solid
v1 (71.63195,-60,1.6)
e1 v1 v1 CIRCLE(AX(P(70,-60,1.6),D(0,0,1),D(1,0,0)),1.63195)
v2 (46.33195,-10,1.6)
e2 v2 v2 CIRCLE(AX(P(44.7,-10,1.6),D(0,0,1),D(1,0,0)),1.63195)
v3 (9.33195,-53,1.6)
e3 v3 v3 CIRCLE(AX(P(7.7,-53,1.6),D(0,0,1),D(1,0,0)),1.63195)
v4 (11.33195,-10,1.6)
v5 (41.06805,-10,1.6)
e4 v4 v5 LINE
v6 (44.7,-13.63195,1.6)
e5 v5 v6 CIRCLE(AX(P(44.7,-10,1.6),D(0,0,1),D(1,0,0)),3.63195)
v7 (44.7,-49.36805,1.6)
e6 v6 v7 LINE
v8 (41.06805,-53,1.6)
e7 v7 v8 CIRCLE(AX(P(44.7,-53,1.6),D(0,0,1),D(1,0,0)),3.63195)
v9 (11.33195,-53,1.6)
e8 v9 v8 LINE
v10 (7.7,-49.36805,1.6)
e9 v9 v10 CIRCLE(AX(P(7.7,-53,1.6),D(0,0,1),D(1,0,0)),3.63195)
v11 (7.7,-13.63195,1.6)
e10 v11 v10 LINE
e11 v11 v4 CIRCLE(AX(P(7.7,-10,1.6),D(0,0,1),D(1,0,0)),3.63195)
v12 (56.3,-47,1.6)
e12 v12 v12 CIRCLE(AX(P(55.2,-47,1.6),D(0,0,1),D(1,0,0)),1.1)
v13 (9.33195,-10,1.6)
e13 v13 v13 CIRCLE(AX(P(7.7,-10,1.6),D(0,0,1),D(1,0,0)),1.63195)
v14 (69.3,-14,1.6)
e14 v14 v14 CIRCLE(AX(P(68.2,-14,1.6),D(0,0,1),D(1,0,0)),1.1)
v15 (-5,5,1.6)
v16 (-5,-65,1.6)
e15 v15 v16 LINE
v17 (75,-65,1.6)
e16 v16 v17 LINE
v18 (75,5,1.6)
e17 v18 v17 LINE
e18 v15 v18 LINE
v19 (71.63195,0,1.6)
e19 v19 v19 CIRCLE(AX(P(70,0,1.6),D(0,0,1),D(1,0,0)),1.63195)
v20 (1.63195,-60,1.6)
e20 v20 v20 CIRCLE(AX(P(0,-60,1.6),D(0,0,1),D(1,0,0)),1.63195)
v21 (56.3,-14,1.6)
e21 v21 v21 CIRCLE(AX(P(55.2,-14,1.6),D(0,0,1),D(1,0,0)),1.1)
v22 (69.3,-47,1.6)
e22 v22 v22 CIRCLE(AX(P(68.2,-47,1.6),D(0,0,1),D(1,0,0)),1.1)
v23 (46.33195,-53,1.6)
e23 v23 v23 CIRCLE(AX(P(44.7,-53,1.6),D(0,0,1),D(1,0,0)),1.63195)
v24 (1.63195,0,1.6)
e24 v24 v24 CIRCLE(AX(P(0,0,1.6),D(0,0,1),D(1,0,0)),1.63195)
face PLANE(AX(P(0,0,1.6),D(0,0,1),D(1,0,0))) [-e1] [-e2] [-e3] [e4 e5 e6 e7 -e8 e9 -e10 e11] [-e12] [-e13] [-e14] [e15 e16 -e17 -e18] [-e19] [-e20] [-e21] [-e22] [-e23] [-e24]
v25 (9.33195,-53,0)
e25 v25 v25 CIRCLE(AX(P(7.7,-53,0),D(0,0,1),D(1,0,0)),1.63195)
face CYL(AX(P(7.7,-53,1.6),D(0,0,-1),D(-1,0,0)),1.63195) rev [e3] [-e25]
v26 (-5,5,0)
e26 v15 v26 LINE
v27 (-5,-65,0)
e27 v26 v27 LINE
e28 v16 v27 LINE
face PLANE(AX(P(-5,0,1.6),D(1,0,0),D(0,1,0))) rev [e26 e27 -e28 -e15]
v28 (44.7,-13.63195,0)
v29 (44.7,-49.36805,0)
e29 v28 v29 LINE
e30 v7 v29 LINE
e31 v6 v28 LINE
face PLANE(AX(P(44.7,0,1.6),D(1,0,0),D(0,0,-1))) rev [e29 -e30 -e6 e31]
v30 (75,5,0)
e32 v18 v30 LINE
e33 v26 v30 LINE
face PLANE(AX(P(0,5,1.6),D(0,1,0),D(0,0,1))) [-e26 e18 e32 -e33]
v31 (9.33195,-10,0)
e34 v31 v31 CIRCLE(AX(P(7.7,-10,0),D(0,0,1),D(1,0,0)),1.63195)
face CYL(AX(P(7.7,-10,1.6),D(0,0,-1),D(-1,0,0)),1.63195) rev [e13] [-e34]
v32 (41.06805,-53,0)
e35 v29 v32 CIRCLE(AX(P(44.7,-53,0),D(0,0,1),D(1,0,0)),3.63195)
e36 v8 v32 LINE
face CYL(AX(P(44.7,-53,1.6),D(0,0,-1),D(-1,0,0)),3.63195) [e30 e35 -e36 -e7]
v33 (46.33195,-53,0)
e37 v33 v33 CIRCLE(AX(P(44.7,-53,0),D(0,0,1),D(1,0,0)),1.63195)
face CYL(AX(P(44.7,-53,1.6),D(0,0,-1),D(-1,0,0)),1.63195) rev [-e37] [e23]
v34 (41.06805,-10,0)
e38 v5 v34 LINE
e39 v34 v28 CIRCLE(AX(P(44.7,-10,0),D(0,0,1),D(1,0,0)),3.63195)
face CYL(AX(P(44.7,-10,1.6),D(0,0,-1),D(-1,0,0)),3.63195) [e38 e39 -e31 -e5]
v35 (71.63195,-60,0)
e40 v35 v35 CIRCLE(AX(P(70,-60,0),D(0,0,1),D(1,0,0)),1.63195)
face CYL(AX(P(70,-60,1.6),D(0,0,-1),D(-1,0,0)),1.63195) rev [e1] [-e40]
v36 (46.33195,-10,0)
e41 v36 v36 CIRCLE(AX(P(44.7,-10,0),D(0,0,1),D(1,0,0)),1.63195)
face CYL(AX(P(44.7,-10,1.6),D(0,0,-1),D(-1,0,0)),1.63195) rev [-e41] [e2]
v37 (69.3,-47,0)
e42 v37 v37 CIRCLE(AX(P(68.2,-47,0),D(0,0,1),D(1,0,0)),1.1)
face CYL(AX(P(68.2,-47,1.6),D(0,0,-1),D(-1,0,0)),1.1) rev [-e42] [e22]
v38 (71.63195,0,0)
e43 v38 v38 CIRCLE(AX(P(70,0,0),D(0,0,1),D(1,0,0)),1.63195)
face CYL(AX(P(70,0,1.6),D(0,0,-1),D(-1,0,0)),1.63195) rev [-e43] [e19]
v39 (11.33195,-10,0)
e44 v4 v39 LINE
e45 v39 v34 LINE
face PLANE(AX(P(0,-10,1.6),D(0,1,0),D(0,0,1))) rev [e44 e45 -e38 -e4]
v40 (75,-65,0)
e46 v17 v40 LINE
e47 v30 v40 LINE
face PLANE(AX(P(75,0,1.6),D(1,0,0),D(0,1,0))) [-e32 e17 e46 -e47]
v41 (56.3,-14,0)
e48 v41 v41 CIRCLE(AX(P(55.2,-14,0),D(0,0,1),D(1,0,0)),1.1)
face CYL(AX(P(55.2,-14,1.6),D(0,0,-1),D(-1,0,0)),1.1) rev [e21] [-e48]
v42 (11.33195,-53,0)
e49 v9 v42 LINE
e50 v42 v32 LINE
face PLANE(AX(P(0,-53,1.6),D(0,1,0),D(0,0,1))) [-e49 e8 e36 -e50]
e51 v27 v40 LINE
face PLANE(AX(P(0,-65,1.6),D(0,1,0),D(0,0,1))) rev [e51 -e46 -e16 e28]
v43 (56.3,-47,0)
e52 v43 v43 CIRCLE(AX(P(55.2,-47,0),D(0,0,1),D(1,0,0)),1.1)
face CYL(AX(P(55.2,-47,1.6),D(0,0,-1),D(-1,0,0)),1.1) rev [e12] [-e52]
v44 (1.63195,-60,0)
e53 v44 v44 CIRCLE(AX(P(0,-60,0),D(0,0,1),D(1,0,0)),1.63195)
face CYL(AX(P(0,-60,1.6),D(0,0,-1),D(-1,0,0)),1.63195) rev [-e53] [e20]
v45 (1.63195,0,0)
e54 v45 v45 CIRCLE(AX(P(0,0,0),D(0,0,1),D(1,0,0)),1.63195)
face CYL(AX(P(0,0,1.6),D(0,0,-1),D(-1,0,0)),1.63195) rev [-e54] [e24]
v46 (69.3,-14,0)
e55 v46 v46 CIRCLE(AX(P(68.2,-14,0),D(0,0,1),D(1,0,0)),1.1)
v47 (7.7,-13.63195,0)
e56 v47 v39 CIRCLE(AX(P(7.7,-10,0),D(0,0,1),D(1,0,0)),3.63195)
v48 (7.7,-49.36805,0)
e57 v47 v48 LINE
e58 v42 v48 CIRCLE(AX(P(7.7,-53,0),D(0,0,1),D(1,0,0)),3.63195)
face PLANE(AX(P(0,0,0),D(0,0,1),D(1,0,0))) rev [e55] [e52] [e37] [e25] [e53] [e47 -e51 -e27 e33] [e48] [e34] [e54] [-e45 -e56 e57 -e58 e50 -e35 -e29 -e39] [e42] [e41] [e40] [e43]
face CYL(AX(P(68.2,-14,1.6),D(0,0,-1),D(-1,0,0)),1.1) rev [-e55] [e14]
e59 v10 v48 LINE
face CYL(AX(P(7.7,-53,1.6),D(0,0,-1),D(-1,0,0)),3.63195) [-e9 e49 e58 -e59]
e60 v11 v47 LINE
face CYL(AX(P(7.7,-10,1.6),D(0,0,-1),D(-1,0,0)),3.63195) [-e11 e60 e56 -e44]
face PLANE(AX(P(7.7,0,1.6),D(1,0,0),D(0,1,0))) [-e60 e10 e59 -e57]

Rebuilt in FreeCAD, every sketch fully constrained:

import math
import FreeCAD as App
import Part
import Sketcher
Q = App.Units.Quantity

doc = App.newDocument("Part")
params = doc.addObject("Spreadsheet::Sheet", "Params")
for row, (alias, value) in enumerate([
    ("sketch1_diameter", "2.2 mm"),
    ("sketch1_width", "80 mm"),
    ("sketch1_height", "70 mm"),
    ("pad1_length", "1.6 mm"),
], start=1):
    params.set(f"A{row}", alias)
    params.set(f"B{row}", "=" + value)
    params.setAlias(f"B{row}", alias)

body = doc.addObject("PartDesign::Body", "Body")

# Sketch on XY plane
sketch1 = doc.addObject("Sketcher::SketchObject", "Sketch")
body.addObject(sketch1)
sketch1.AttachmentSupport = (doc.XY_Plane, [""])
sketch1.MapMode = "FlatFace"
sketch1.addGeometry([
    Part.LineSegment(App.Vector(-5, 5, 0), App.Vector(-5, -65, 0)),  # 0
    Part.LineSegment(App.Vector(-5, -65, 0), App.Vector(75, -65, 0)),  # 1
    Part.LineSegment(App.Vector(75, -65, 0), App.Vector(75, 5, 0)),  # 2
    Part.LineSegment(App.Vector(75, 5, 0), App.Vector(-5, 5, 0)),  # 3
    Part.Circle(App.Vector(0, -60, 0), App.Vector(0, 0, 1), 1.63195),  # 4
    Part.Circle(App.Vector(7.7, -53, 0), App.Vector(0, 0, 1), 1.63195),  # 5
    Part.ArcOfCircle(Part.Circle(App.Vector(7.7, -53, 0), App.Vector(0, 0, 1), 3.63195), math.radians(0), math.radians(90)),  # 6
    Part.LineSegment(App.Vector(7.7, -49.36805, 0), App.Vector(7.7, -13.63195, 0)),  # 7
    Part.ArcOfCircle(Part.Circle(App.Vector(7.7, -10, 0), App.Vector(0, 0, 1), 3.63195), math.radians(-90), math.radians(0)),  # 8
    Part.LineSegment(App.Vector(11.33195, -10, 0), App.Vector(41.06805, -10, 0)),  # 9
    Part.ArcOfCircle(Part.Circle(App.Vector(44.7, -10, 0), App.Vector(0, 0, 1), 3.63195), math.radians(180), math.radians(270)),  # 10
    Part.LineSegment(App.Vector(44.7, -13.63195, 0), App.Vector(44.7, -49.36805, 0)),  # 11
    Part.ArcOfCircle(Part.Circle(App.Vector(44.7, -53, 0), App.Vector(0, 0, 1), 3.63195), math.radians(90), math.radians(180)),  # 12
    Part.LineSegment(App.Vector(41.06805, -53, 0), App.Vector(11.33195, -53, 0)),  # 13
    Part.Circle(App.Vector(44.7, -53, 0), App.Vector(0, 0, 1), 1.63195),  # 14
    Part.Circle(App.Vector(70, -60, 0), App.Vector(0, 0, 1), 1.63195),  # 15
    Part.Circle(App.Vector(55.2, -47, 0), App.Vector(0, 0, 1), 1.1),  # 16
    Part.Circle(App.Vector(68.2, -47, 0), App.Vector(0, 0, 1), 1.1),  # 17
    Part.Circle(App.Vector(7.7, -10, 0), App.Vector(0, 0, 1), 1.63195),  # 18
    Part.Circle(App.Vector(0, 0, 0), App.Vector(0, 0, 1), 1.63195),  # 19
    Part.Circle(App.Vector(44.7, -10, 0), App.Vector(0, 0, 1), 1.63195),  # 20
    Part.Circle(App.Vector(55.2, -14, 0), App.Vector(0, 0, 1), 1.1),  # 21
    Part.Circle(App.Vector(68.2, -14, 0), App.Vector(0, 0, 1), 1.1),  # 22
    Part.Circle(App.Vector(70, 0, 0), App.Vector(0, 0, 1), 1.63195),  # 23
], False)
sketch1.addConstraint([
    Sketcher.Constraint("Coincident", 0, 2, 1, 1),
    Sketcher.Constraint("Coincident", 1, 2, 2, 1),
    Sketcher.Constraint("Coincident", 2, 2, 3, 1),
    Sketcher.Constraint("Coincident", 3, 2, 0, 1),
    Sketcher.Constraint("Coincident", 6, 2, 7, 1),
    Sketcher.Constraint("Coincident", 7, 2, 8, 1),
    Sketcher.Constraint("Coincident", 8, 2, 9, 1),
    Sketcher.Constraint("Coincident", 9, 2, 10, 1),
    Sketcher.Constraint("Coincident", 10, 2, 11, 1),
    Sketcher.Constraint("Coincident", 11, 2, 12, 1),
    Sketcher.Constraint("Coincident", 12, 2, 13, 1),
    Sketcher.Constraint("Coincident", 13, 2, 6, 1),
    Sketcher.Constraint("Vertical", 0),
    Sketcher.Constraint("Horizontal", 1),
    Sketcher.Constraint("Vertical", 2),
    Sketcher.Constraint("Horizontal", 3),
    Sketcher.Constraint("Vertical", 7),
    Sketcher.Constraint("Horizontal", 9),
    Sketcher.Constraint("Vertical", 11),
    Sketcher.Constraint("Horizontal", 13),
    Sketcher.Constraint("Coincident", 19, 3, -1, 1),
    Sketcher.Constraint("Coincident", 6, 3, 5, 3),
    Sketcher.Constraint("Coincident", 14, 3, 12, 3),
    Sketcher.Constraint("Coincident", 18, 3, 8, 3),
    Sketcher.Constraint("Coincident", 20, 3, 10, 3),
    Sketcher.Constraint("Equal", 4, 5),
    Sketcher.Constraint("Equal", 6, 8),
    Sketcher.Constraint("Equal", 8, 10),
    Sketcher.Constraint("Equal", 10, 12),
    Sketcher.Constraint("Equal", 5, 14),
    Sketcher.Constraint("Equal", 14, 15),
    Sketcher.Constraint("Equal", 16, 17),
    Sketcher.Constraint("Equal", 15, 18),
    Sketcher.Constraint("Equal", 18, 19),
    Sketcher.Constraint("Equal", 19, 20),
    Sketcher.Constraint("Equal", 17, 21),
    Sketcher.Constraint("Equal", 21, 22),
    Sketcher.Constraint("Equal", 20, 23),
    Sketcher.Constraint("PointOnObject", 4, 3, -2),
    Sketcher.Constraint("PointOnObject", 23, 3, -1),
    Sketcher.Constraint("Horizontal", 8, 3, 10, 3),
    Sketcher.Constraint("Horizontal", 6, 3, 12, 3),
    Sketcher.Constraint("Horizontal", 4, 3, 15, 3),
    Sketcher.Constraint("Horizontal", 16, 3, 17, 3),
    Sketcher.Constraint("Horizontal", 21, 3, 22, 3),
    Sketcher.Constraint("Horizontal", 20, 3, 8, 2),
    Sketcher.Constraint("Horizontal", 14, 3, 12, 2),
    Sketcher.Constraint("Vertical", 6, 3, 8, 3),
    Sketcher.Constraint("Vertical", 10, 3, 12, 3),
    Sketcher.Constraint("Vertical", 16, 3, 21, 3),
    Sketcher.Constraint("Vertical", 17, 3, 22, 3),
    Sketcher.Constraint("Vertical", 15, 3, 23, 3),
    Sketcher.Constraint("Vertical", 18, 3, 6, 2),
    Sketcher.Constraint("Vertical", 20, 3, 10, 2),
    Sketcher.Constraint("Diameter", 16, Q("2.2 mm")),
    Sketcher.Constraint("DistanceX", 1, 1, 1, 2, Q("80 mm")),
    Sketcher.Constraint("DistanceY", 0, 2, 0, 1, Q("70 mm")),
    Sketcher.Constraint("DistanceY", 4, 3, -1, 1, Q("60 mm")),
    Sketcher.Constraint("DistanceY", 5, 3, -1, 1, Q("53 mm")),
    Sketcher.Constraint("DistanceY", 8, 3, -1, 1, Q("10 mm")),
    Sketcher.Constraint("DistanceX", -1, 1, 15, 3, Q("70 mm")),
    Sketcher.Constraint("DistanceY", 16, 3, -1, 1, Q("47 mm")),
    Sketcher.Constraint("DistanceY", 21, 3, -1, 1, Q("14 mm")),
    Sketcher.Constraint("DistanceX", 0, 2, -1, 1, Q("5 mm")),
    Sketcher.Constraint("DistanceY", 0, 2, -1, 1, Q("65 mm")),
    Sketcher.Constraint("DistanceX", 8, 3, 10, 3, Q("37 mm")),
    Sketcher.Constraint("DistanceX", 16, 3, 17, 3, Q("13 mm")),
    Sketcher.Constraint("Diameter", 4, Q("3.2639 mm")),
    Sketcher.Constraint("DistanceX", -1, 1, 5, 3, Q("7.7 mm")),
    Sketcher.Constraint("DistanceX", -1, 1, 16, 3, Q("55.2 mm")),
    Sketcher.Constraint("Radius", 6, Q("3.63195 mm")),
])
sketch1.setExpression("Constraints[54]", "Params.sketch1_diameter")
sketch1.setExpression("Constraints[55]", "Params.sketch1_width")
sketch1.setExpression("Constraints[56]", "Params.sketch1_height")
pad1 = doc.addObject("PartDesign::Pad", "Pad")
body.addObject(pad1)
pad1.Profile = sketch1
pad1.setExpression("Length", "Params.pad1_length")

doc.recompute()
